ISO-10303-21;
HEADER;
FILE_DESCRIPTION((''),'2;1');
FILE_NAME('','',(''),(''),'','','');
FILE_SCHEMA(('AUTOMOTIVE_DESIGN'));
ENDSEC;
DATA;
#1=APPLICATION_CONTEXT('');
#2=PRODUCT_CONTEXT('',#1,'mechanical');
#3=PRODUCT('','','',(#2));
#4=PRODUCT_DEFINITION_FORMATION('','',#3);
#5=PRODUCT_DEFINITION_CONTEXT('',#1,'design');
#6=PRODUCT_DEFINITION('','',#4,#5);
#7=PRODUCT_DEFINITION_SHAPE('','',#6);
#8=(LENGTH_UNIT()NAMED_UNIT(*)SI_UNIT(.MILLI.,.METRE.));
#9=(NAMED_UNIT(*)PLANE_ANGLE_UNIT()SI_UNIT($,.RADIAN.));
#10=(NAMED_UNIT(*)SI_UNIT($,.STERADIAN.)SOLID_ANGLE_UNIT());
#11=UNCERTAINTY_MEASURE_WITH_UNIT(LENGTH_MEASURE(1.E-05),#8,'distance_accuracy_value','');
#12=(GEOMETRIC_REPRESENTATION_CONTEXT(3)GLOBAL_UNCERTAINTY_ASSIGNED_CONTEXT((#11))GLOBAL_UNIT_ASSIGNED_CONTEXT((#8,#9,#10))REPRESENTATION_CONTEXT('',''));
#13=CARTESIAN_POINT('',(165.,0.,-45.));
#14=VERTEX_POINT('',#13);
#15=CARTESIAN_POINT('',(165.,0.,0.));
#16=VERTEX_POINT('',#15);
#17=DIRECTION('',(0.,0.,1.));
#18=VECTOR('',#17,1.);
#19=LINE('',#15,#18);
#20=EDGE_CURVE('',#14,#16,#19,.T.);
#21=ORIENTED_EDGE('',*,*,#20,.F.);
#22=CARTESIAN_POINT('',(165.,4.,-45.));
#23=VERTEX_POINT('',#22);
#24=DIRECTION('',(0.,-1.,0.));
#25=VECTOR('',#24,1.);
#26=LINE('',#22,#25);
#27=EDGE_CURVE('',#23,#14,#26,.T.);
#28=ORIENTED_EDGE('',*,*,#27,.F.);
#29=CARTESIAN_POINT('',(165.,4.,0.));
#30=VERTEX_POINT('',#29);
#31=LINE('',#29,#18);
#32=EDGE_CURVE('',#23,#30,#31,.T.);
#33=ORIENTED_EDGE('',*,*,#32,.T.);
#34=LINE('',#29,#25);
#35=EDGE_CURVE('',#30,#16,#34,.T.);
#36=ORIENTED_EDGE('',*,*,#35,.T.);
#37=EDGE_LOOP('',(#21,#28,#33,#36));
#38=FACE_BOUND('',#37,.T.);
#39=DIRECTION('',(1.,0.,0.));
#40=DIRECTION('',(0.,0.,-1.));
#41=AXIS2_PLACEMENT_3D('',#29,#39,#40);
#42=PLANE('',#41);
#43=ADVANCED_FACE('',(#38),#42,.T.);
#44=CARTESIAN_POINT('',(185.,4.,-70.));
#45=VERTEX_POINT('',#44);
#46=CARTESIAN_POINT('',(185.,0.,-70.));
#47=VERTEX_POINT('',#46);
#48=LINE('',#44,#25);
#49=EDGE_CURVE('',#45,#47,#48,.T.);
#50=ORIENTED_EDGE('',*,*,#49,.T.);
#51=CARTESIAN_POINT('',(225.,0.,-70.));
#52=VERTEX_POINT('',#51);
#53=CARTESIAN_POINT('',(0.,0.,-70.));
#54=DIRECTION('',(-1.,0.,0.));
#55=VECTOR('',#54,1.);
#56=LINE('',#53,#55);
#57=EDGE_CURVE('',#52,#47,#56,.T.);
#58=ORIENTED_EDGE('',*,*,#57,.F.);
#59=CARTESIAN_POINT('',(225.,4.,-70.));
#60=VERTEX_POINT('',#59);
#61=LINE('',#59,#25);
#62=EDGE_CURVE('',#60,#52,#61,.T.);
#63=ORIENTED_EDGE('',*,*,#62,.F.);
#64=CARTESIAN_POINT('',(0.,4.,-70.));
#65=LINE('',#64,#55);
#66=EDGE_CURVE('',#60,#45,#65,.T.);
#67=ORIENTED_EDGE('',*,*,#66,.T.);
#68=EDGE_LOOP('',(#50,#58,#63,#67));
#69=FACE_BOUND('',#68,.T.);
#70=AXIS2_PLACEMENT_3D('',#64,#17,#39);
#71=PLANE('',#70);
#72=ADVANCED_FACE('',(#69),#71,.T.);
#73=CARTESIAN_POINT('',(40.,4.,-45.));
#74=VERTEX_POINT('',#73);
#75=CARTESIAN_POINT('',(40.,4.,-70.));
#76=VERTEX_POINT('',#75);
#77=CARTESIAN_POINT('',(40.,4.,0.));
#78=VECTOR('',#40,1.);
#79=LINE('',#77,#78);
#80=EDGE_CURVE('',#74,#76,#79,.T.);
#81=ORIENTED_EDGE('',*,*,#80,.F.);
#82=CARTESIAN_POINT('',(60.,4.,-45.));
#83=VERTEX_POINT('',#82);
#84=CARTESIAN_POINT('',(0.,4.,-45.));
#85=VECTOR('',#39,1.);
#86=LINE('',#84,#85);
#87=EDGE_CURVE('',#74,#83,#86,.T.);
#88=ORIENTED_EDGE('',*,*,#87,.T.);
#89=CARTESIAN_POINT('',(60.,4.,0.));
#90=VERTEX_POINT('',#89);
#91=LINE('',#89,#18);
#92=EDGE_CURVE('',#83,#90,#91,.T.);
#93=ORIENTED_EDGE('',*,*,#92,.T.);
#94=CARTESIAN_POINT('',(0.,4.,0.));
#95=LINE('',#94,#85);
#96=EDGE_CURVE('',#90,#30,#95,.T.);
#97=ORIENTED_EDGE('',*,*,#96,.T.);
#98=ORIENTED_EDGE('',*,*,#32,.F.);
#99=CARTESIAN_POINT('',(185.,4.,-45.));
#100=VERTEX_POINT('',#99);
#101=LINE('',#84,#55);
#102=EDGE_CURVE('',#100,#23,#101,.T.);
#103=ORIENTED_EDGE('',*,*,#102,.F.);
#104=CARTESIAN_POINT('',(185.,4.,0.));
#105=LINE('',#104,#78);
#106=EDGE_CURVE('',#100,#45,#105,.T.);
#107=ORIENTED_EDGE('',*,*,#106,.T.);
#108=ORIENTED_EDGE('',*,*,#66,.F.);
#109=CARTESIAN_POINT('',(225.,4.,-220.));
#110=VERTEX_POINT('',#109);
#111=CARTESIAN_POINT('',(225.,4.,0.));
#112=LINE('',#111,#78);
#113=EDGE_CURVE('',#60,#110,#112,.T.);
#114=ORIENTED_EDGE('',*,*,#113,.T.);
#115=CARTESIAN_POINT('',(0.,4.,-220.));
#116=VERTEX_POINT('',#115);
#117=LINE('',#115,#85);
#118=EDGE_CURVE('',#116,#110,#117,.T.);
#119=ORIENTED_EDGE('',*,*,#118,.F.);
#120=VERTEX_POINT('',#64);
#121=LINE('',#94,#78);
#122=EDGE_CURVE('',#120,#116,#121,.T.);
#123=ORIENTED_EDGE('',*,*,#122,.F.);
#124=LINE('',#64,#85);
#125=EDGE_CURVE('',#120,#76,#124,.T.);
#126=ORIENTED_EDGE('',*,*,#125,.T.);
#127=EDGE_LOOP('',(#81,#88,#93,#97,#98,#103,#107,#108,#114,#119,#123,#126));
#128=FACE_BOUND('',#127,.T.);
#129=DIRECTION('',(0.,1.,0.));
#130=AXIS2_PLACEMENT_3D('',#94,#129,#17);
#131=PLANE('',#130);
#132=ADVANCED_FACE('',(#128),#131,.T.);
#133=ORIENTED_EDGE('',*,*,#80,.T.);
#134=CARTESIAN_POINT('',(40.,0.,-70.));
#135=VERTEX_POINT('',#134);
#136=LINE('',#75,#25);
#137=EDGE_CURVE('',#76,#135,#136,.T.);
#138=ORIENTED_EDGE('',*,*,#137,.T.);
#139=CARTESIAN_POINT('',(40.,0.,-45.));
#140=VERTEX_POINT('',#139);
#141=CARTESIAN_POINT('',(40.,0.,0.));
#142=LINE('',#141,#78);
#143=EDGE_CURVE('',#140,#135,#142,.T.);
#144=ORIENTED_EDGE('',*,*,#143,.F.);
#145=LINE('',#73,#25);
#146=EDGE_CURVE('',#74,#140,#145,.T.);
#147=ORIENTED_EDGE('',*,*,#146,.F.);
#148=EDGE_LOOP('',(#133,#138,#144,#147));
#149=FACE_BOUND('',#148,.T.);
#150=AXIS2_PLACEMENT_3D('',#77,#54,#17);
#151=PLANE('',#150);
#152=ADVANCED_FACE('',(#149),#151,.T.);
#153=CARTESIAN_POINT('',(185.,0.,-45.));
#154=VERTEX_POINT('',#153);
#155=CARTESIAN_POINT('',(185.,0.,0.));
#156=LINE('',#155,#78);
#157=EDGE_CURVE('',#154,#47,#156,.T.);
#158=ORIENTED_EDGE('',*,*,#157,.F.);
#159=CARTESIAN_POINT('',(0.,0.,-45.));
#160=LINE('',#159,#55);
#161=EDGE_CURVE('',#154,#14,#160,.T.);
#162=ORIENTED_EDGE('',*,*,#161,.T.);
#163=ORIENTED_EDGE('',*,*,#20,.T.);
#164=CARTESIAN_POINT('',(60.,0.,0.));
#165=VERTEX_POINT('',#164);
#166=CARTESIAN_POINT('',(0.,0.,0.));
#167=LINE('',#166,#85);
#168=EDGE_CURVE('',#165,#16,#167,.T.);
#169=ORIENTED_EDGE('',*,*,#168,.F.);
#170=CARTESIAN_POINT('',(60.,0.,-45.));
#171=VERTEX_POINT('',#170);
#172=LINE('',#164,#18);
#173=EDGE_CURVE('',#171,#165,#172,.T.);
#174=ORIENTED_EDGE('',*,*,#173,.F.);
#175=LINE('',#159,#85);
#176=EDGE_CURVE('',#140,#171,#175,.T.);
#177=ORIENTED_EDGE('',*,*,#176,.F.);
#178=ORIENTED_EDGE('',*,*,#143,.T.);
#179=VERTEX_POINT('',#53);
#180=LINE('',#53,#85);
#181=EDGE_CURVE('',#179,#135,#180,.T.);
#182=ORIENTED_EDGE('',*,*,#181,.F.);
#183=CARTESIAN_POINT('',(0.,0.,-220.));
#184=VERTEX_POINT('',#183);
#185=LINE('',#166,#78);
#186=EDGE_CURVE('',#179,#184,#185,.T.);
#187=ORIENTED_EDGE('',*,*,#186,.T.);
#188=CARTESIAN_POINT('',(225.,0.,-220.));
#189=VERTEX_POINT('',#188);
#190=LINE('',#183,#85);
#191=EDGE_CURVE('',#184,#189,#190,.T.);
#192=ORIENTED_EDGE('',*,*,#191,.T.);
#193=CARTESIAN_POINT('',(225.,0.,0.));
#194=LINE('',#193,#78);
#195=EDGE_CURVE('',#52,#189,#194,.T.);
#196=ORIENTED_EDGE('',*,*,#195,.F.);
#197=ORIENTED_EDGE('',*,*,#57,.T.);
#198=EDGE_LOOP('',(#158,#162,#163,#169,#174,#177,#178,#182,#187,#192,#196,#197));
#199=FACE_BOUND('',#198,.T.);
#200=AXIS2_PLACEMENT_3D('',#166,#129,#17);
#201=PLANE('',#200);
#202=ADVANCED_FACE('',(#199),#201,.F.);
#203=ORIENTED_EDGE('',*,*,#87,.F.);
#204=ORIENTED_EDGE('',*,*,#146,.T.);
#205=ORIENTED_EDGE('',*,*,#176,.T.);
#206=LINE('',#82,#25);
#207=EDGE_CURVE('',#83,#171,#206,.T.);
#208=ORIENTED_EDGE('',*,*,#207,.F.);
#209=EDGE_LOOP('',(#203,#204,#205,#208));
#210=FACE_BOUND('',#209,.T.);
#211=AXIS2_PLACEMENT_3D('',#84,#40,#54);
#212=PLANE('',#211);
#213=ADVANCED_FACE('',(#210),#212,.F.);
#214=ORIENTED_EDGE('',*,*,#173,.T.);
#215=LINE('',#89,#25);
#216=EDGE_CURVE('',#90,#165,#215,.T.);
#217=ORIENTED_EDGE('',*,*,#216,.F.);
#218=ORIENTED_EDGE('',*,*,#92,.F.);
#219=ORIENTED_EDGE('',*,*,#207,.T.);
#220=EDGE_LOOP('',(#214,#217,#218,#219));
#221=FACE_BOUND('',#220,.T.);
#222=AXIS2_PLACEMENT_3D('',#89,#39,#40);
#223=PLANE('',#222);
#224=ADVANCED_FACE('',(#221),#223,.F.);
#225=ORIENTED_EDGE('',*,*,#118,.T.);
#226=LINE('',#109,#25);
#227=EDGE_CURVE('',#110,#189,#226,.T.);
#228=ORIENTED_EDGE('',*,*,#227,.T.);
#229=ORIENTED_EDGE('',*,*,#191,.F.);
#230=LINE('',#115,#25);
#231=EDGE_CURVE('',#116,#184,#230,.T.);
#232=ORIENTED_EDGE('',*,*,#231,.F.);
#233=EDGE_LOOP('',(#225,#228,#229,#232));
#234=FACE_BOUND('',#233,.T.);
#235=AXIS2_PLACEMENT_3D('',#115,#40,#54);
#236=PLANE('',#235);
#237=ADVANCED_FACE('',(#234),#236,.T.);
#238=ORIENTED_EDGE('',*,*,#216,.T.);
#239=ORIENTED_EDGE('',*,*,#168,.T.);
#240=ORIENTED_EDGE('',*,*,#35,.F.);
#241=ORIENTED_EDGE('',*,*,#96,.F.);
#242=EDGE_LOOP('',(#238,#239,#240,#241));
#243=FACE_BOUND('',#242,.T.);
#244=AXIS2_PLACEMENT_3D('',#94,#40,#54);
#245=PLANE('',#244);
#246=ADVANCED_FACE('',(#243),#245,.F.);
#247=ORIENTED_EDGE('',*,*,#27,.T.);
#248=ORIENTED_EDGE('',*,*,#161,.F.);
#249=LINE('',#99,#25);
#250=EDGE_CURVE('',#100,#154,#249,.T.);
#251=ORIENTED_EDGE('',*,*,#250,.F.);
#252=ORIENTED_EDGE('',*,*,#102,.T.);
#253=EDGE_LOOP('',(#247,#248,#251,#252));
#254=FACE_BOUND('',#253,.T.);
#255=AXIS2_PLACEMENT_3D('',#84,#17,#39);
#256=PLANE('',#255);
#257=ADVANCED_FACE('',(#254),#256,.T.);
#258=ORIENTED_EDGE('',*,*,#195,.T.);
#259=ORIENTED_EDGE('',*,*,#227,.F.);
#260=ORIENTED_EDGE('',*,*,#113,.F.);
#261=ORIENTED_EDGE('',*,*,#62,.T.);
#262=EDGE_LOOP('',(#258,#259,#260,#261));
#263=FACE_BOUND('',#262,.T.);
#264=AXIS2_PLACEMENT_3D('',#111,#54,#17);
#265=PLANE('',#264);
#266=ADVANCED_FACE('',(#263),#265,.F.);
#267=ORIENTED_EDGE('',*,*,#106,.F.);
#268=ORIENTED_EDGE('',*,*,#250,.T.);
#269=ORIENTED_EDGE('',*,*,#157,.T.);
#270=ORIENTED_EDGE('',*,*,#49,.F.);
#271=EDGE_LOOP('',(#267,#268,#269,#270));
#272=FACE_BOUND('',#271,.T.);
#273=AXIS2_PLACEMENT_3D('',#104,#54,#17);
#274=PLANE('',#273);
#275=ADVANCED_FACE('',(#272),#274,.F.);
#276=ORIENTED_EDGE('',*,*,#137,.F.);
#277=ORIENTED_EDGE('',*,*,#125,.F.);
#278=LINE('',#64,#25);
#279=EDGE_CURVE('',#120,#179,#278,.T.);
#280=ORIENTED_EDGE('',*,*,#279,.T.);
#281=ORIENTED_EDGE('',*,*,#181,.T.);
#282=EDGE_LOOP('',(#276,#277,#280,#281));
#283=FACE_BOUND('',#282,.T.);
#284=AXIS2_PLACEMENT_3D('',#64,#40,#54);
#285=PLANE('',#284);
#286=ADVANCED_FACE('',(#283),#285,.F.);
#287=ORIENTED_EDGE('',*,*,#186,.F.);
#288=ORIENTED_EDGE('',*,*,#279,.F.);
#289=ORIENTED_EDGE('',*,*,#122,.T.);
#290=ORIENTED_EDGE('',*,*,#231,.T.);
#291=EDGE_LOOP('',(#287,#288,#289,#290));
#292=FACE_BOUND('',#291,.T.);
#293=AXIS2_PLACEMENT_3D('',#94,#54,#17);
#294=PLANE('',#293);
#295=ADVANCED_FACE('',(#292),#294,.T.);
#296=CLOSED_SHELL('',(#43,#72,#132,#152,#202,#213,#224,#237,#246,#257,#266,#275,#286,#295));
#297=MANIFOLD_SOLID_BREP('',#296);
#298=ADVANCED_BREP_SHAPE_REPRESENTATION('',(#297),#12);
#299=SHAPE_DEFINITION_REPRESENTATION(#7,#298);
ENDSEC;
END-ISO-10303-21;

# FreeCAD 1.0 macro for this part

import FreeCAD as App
import Part
import Sketcher

V = App.Vector

doc = App.newDocument("Part")
body = doc.addObject("PartDesign::Body", "Body")

# Sketch on XZ plane
sketch1 = body.newObject("Sketcher::SketchObject", "Sketch")
sketch1.AttachmentSupport = (doc.getObject("XZ_Plane"), [""])
sketch1.MapMode = "FlatFace"
sketch1.addGeometry([
    Part.LineSegment(V(0, -220, 0), V(0, -70, 0)),  # 0
    Part.LineSegment(V(0, -70, 0), V(40, -70, 0)),  # 1
    Part.LineSegment(V(40, -70, 0), V(40, -45, 0)),  # 2
    Part.LineSegment(V(40, -45, 0), V(60, -45, 0)),  # 3
    Part.LineSegment(V(60, -45, 0), V(60, 0, 0)),  # 4
    Part.LineSegment(V(60, 0, 0), V(165, 0, 0)),  # 5
    Part.LineSegment(V(165, 0, 0), V(165, -45, 0)),  # 6
    Part.LineSegment(V(165, -45, 0), V(185, -45, 0)),  # 7
    Part.LineSegment(V(185, -45, 0), V(185, -70, 0)),  # 8
    Part.LineSegment(V(185, -70, 0), V(225, -70, 0)),  # 9
    Part.LineSegment(V(225, -70, 0), V(225, -220, 0)),  # 10
    Part.LineSegment(V(225, -220, 0), V(0, -220, 0)),  # 11
], False)
sketch1.addConstraint([
    Sketcher.Constraint("Coincident", 0, 2, 1, 1),
    Sketcher.Constraint("Coincident", 1, 2, 2, 1),
    Sketcher.Constraint("Coincident", 2, 2, 3, 1),
    Sketcher.Constraint("Coincident", 3, 2, 4, 1),
    Sketcher.Constraint("Coincident", 4, 2, 5, 1),
    Sketcher.Constraint("Coincident", 5, 2, 6, 1),
    Sketcher.Constraint("Coincident", 6, 2, 7, 1),
    Sketcher.Constraint("Coincident", 7, 2, 8, 1),
    Sketcher.Constraint("Coincident", 8, 2, 9, 1),
    Sketcher.Constraint("Coincident", 9, 2, 10, 1),
    Sketcher.Constraint("Coincident", 10, 2, 11, 1),
    Sketcher.Constraint("Coincident", 11, 2, 0, 1),
    Sketcher.Constraint("Vertical", 0),
    Sketcher.Constraint("Horizontal", 1),
    Sketcher.Constraint("Vertical", 2),
    Sketcher.Constraint("Horizontal", 3),
    Sketcher.Constraint("Vertical", 4),
    Sketcher.Constraint("Horizontal", 5),
    Sketcher.Constraint("Vertical", 6),
    Sketcher.Constraint("Horizontal", 7),
    Sketcher.Constraint("Vertical", 8),
    Sketcher.Constraint("Horizontal", 9),
    Sketcher.Constraint("Vertical", 10),
    Sketcher.Constraint("Horizontal", 11),
    Sketcher.Constraint("PointOnObject", 0, 2, -2),
    Sketcher.Constraint("PointOnObject", 4, 2, -1),
    Sketcher.Constraint("Horizontal", 3, 2, 6, 2),
    Sketcher.Constraint("Horizontal", 1, 2, 8, 2),
    Sketcher.Constraint("Equal", 3, 7),
    Sketcher.Constraint("Equal", 1, 9),
    Sketcher.Constraint("DistanceX", 1, 1, 1, 2, 40.0),
    Sketcher.Constraint("DistanceX", 3, 1, 3, 2, 20.0),
    Sketcher.Constraint("DistanceX", 5, 1, 5, 2, 105.0),
    Sketcher.Constraint("DistanceY", 0, 1, 0, 2, 150.0),
    Sketcher.Constraint("DistanceY", 2, 1, 2, 2, 25.0),
    Sketcher.Constraint("DistanceY", 4, 1, 4, 2, 45.0),
])
pad1 = body.newObject("PartDesign::Pad", "Pad")
pad1.Profile = sketch1
pad1.Length = 4
pad1.Reversed = True

doc.recompute()
